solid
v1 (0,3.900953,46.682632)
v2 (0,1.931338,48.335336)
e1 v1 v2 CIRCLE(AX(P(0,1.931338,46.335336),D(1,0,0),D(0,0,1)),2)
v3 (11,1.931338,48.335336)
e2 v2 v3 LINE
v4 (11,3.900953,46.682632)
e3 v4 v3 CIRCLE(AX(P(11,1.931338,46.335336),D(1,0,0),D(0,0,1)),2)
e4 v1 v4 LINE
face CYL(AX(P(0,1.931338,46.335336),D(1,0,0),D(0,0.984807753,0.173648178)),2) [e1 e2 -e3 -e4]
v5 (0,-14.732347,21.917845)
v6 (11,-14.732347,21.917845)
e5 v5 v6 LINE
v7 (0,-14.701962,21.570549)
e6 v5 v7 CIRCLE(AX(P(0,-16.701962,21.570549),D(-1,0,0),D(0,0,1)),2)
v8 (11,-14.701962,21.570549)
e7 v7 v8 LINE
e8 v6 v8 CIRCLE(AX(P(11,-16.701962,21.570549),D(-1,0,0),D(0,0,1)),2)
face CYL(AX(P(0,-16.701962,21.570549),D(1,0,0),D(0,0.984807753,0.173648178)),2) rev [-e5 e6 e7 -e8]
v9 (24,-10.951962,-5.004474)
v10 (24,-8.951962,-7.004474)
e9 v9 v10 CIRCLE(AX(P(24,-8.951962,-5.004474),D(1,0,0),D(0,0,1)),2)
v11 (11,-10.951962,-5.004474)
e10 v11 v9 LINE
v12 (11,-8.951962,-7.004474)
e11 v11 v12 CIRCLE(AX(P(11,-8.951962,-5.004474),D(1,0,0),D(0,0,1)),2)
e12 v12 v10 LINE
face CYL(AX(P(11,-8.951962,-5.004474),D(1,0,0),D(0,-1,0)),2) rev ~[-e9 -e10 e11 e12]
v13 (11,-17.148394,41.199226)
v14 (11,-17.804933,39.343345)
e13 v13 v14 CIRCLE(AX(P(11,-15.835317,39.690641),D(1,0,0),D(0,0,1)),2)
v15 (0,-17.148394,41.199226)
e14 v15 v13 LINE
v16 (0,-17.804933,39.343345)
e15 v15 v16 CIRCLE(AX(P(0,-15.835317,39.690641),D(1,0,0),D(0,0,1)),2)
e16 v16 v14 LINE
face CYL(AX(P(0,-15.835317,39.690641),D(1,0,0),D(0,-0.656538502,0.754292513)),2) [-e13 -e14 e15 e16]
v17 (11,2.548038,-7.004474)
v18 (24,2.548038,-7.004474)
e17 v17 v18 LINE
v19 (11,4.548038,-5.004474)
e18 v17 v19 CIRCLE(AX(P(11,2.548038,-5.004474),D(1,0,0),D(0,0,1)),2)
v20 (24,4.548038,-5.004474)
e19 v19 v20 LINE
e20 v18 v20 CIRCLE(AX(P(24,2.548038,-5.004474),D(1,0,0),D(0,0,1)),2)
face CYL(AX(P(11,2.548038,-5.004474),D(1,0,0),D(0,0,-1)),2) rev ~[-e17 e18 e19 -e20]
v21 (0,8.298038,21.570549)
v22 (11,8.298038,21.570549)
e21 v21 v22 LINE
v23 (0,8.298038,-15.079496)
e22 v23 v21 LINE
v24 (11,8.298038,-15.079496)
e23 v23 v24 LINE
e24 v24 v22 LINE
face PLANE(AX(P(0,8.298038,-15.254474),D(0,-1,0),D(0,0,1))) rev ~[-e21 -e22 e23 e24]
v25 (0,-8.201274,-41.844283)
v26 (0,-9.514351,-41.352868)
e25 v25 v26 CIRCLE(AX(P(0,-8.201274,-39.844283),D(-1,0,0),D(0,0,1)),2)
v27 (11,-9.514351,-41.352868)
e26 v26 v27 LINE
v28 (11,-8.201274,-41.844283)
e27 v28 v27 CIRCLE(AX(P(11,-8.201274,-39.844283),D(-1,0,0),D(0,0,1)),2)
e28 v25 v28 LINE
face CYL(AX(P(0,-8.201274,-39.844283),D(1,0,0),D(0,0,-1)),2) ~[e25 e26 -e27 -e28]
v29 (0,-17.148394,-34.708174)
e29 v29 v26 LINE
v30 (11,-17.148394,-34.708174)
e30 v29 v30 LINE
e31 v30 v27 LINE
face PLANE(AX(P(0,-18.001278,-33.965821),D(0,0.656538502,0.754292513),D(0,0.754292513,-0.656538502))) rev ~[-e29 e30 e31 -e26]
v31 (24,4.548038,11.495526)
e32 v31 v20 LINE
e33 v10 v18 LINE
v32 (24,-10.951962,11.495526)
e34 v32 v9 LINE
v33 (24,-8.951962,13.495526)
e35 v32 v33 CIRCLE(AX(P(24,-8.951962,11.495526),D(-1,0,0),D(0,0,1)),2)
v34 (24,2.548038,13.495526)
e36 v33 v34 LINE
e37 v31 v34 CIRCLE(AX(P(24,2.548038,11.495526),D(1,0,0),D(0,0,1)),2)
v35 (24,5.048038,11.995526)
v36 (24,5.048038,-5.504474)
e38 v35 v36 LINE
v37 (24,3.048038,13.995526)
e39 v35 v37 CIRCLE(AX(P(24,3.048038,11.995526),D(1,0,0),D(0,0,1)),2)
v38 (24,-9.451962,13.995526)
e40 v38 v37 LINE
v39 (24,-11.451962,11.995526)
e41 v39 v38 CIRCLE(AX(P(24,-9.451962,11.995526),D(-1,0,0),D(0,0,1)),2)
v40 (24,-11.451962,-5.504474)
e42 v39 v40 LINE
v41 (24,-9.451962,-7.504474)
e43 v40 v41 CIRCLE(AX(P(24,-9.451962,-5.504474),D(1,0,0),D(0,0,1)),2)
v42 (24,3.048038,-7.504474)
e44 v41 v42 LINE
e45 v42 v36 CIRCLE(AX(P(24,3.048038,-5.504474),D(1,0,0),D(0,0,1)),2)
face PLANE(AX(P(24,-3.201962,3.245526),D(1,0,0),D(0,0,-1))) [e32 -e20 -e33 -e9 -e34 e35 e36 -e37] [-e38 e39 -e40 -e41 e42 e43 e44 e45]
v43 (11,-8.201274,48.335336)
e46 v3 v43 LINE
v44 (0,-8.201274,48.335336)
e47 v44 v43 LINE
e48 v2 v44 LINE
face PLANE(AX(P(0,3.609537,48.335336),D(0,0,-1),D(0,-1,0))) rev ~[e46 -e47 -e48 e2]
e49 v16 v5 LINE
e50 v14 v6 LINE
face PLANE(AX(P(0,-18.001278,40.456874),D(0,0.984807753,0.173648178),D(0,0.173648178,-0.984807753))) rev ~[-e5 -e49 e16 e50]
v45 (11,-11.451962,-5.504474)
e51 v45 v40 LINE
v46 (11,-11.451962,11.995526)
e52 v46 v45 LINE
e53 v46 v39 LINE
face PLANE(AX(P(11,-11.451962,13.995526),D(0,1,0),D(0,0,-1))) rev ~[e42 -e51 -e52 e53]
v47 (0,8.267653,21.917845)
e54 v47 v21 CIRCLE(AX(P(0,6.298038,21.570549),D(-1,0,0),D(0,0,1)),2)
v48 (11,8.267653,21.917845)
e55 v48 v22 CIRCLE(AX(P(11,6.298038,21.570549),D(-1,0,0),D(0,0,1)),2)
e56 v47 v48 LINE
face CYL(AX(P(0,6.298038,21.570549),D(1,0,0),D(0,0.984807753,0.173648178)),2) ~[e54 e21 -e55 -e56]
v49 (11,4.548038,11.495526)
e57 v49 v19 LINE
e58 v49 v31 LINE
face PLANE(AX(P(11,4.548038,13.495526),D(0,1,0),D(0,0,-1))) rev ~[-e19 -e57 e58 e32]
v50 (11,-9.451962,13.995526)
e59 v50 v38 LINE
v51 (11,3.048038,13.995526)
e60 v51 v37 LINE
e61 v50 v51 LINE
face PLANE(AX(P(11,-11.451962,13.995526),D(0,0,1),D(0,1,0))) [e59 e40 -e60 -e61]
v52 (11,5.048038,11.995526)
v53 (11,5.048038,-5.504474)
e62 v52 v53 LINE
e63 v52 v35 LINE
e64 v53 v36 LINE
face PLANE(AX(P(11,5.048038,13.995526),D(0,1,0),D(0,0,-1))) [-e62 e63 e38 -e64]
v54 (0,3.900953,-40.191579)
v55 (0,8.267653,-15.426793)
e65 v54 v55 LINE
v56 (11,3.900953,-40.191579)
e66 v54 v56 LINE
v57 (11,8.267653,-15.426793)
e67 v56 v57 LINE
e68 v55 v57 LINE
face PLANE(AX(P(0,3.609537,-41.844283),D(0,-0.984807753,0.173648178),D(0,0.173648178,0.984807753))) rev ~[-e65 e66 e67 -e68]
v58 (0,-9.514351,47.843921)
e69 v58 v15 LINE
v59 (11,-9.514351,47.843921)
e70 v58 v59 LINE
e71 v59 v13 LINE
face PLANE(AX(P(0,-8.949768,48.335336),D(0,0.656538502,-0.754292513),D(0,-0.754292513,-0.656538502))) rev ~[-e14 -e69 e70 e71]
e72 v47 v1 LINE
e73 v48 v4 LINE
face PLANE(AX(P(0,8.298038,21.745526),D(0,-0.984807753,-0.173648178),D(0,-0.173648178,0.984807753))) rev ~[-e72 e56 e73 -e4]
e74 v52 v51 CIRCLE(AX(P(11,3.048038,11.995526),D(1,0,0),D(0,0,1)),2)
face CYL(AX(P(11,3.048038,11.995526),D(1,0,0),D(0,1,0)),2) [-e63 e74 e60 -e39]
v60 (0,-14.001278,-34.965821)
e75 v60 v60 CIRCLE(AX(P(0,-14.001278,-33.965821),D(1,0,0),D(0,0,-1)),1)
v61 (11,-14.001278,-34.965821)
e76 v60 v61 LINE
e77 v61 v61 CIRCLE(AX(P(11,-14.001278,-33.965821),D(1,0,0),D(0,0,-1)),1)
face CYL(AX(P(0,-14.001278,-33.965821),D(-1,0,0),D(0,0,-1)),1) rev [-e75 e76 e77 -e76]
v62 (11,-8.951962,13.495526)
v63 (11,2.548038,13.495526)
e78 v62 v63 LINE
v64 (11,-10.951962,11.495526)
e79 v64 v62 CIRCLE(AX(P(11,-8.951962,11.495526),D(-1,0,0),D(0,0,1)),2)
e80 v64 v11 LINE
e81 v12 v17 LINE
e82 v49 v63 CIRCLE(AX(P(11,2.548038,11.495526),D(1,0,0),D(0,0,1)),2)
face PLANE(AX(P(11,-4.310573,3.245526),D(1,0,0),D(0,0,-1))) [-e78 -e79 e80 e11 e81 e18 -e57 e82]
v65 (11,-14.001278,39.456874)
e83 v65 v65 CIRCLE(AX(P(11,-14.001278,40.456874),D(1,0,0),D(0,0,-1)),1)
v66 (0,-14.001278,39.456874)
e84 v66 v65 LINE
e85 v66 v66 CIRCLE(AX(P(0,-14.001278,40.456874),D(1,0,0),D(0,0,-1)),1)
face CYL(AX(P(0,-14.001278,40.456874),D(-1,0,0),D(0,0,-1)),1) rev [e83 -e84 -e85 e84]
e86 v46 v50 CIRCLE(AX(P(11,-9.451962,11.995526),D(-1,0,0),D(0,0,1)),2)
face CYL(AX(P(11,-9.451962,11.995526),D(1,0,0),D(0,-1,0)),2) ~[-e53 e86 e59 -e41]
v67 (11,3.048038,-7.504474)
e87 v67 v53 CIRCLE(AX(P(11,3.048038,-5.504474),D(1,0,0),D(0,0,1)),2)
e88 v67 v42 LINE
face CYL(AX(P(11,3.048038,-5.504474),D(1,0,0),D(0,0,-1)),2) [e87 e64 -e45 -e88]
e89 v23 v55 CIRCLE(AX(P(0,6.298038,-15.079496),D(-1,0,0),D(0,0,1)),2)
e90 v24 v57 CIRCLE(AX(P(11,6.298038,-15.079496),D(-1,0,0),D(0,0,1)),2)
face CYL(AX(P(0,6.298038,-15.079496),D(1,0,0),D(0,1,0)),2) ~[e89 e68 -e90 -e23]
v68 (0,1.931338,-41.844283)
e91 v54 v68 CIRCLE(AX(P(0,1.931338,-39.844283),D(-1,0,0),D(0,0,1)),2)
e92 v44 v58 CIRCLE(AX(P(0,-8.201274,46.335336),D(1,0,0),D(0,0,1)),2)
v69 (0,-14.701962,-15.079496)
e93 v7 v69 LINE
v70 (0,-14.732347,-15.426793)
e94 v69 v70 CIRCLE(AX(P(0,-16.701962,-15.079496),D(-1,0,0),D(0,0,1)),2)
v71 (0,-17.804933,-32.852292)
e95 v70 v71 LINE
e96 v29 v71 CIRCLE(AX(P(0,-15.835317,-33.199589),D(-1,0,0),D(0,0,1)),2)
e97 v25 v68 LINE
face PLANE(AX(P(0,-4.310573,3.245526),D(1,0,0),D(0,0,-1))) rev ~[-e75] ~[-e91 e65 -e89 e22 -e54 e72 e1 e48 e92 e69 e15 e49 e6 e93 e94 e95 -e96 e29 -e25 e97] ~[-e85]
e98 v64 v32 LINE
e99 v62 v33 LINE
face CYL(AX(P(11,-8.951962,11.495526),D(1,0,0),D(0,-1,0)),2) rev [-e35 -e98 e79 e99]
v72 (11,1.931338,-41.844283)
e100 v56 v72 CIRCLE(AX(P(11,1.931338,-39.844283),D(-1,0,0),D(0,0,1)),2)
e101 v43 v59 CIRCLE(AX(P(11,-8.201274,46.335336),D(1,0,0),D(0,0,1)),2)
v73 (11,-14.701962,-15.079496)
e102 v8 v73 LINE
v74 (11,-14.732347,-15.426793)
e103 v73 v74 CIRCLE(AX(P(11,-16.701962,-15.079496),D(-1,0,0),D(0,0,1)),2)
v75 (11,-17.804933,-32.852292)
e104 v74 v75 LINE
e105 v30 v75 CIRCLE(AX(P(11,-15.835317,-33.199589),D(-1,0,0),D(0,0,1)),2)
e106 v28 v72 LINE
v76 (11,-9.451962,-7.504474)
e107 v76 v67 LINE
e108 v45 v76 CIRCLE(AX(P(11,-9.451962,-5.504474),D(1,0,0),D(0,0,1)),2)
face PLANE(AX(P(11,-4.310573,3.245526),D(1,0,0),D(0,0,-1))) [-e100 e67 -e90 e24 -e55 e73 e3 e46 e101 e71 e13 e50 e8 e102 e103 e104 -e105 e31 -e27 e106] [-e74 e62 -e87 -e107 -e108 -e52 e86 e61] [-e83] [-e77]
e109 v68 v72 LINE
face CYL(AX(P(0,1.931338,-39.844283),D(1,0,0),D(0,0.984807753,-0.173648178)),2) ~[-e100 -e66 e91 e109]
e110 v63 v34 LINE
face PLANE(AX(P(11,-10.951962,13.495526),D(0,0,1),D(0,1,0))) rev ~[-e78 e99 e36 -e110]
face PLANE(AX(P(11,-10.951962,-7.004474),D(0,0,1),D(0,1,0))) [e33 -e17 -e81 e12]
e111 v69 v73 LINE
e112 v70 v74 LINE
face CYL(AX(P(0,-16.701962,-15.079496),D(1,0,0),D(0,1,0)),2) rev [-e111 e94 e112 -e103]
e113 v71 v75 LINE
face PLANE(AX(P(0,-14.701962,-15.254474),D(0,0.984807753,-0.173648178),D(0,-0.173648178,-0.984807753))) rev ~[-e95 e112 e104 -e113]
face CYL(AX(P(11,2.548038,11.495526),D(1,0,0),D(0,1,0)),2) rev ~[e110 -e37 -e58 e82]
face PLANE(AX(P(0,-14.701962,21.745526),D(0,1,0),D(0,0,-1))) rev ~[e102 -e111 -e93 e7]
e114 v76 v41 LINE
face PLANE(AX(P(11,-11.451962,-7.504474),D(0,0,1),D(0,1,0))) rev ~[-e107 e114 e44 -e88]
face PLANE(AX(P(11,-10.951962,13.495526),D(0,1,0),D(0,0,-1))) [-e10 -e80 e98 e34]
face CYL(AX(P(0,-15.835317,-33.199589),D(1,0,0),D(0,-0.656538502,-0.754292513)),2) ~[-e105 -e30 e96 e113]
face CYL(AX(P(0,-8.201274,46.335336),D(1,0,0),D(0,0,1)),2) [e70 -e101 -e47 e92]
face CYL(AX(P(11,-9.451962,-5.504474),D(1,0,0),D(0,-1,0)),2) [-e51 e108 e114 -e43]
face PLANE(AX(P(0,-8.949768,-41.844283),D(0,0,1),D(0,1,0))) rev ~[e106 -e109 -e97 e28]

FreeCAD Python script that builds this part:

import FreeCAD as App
import Part
import Sketcher

V = App.Vector
Q = App.Units.Quantity


def edges_at(feature, points):
    """Names of the edges that pass closest to the given points."""
    edges = feature.Shape.Edges
    near = lambda p: min(range(len(edges)), key=lambda i: edges[i].distToShape(Part.Vertex(*p))[0])
    return sorted({f"Edge{near(p) + 1}" for p in points})

doc = App.newDocument("Part")
body = doc.addObject("PartDesign::Body", "Body")

sketch1 = body.newObject("Sketcher::SketchObject", "Sketch")
sketch1.AttachmentSupport = (doc.getObject("YZ_Plane"), [""])
sketch1.MapMode = "FlatFace"
sketch1.addGeometry([
    Part.LineSegment(V(8.3, 21.7, 0), V(3.6, 48.3, 0)),
    Part.LineSegment(V(3.6, 48.3, 0), V(-8.9, 48.3, 0)),
    Part.LineSegment(V(-8.9, 48.3, 0), V(-18, 40.5, 0)),
    Part.LineSegment(V(-18, 40.5, 0), V(-14.7, 21.7, 0)),
    Part.LineSegment(V(-14.7, 21.7, 0), V(-14.7, -15.3, 0)),
    Part.LineSegment(V(-14.7, -15.3, 0), V(-18, -34, 0)),
    Part.LineSegment(V(-18, -34, 0), V(-8.9, -41.8, 0)),
    Part.LineSegment(V(-8.9, -41.8, 0), V(3.6, -41.8, 0)),
    Part.LineSegment(V(3.6, -41.8, 0), V(8.3, -15.3, 0)),
    Part.LineSegment(V(8.3, -15.3, 0), V(8.3, 21.7, 0)),
    Part.Circle(V(-14, 40.5, 0), V(0, 0, 1), 1),
    Part.Circle(V(-14, -34, 0), V(0, 0, 1), 1),
], False)
sketch1.addConstraint([
    Sketcher.Constraint("Coincident", 0, 2, 1, 1),
    Sketcher.Constraint("Coincident", 1, 2, 2, 1),
    Sketcher.Constraint("Coincident", 2, 2, 3, 1),
    Sketcher.Constraint("Coincident", 3, 2, 4, 1),
    Sketcher.Constraint("Coincident", 4, 2, 5, 1),
    Sketcher.Constraint("Coincident", 5, 2, 6, 1),
    Sketcher.Constraint("Coincident", 6, 2, 7, 1),
    Sketcher.Constraint("Coincident", 7, 2, 8, 1),
    Sketcher.Constraint("Coincident", 8, 2, 9, 1),
    Sketcher.Constraint("Coincident", 9, 2, 0, 1),
    Sketcher.Constraint("Horizontal", 1),
    Sketcher.Constraint("Vertical", 4),
    Sketcher.Constraint("Horizontal", 7),
    Sketcher.Constraint("Vertical", 9),
    Sketcher.Constraint("Equal", 10, 11),
    Sketcher.Constraint("Parallel", 0, 3),
    Sketcher.Constraint("Parallel", 5, 8),
    Sketcher.Constraint("Horizontal", 10, 3, 2, 2),
    Sketcher.Constraint("Horizontal", 11, 3, 5, 2),
    Sketcher.Constraint("Horizontal", 4, 2, 8, 2),
    Sketcher.Constraint("Horizontal", 3, 2, 9, 2),
    Sketcher.Constraint("Vertical", 10, 3, 11, 3),
    Sketcher.Constraint("Vertical", 2, 2, 5, 2),
    Sketcher.Constraint("Vertical", 1, 2, 6, 2),
    Sketcher.Constraint("Vertical", 0, 2, 7, 2),
    Sketcher.Constraint("Equal", 3, 5),
    Sketcher.Constraint("Diameter", 10, 2.0),
    Sketcher.Constraint("DistanceY", 4, 2, 4, 1, 37.0),
    Sketcher.Constraint("Angle", 0, Q("100 deg")),
    Sketcher.Constraint("Distance", 0, 27.0),
    Sketcher.Constraint("Distance", 2, 12.0),
    Sketcher.Constraint("Distance", 3, 19.0),
    Sketcher.Constraint("DistanceX", 2, 2, 10, 3, 4.0),
    Sketcher.Constraint("DistanceX", 4, 2, 8, 2, 23.0),
    Sketcher.Constraint("DistanceY", 11, 3, -1, 1, 33.965821),
    Sketcher.Constraint("DistanceX", 10, 3, -1, 1, 14.001278),
])
pad1 = body.newObject("PartDesign::Pad", "Pad")
pad1.Profile = sketch1
pad1.Length = 11

sketch2 = body.newObject("Sketcher::SketchObject", "Sketch001")
sketch2.AttachmentSupport = (doc.getObject("YZ_Plane"), [""])
sketch2.MapMode = "FlatFace"
sketch2.AttachmentOffset = App.Placement(V(0, 0, 11), App.Rotation())
sketch2.addGeometry([
    Part.LineSegment(V(5, 14, 0), V(-11, 14, 0)),
    Part.LineSegment(V(-11, 14, 0), V(-11, -8, 0)),
    Part.LineSegment(V(-11, -8, 0), V(5, -8, 0)),
    Part.LineSegment(V(5, -8, 0), V(5, 14, 0)),
    Part.LineSegment(V(-11, -7, 0), V(-11, 13, 0)),
    Part.LineSegment(V(-11, 13, 0), V(5, 13, 0)),
    Part.LineSegment(V(5, 13, 0), V(5, -7, 0)),
    Part.LineSegment(V(5, -7, 0), V(-11, -7, 0)),
], False)
sketch2.addConstraint([
    Sketcher.Constraint("Coincident", 0, 2, 1, 1),
    Sketcher.Constraint("Coincident", 1, 2, 2, 1),
    Sketcher.Constraint("Coincident", 2, 2, 3, 1),
    Sketcher.Constraint("Coincident", 3, 2, 0, 1),
    Sketcher.Constraint("Coincident", 4, 2, 5, 1),
    Sketcher.Constraint("Coincident", 5, 2, 6, 1),
    Sketcher.Constraint("Coincident", 6, 2, 7, 1),
    Sketcher.Constraint("Coincident", 7, 2, 4, 1),
    Sketcher.Constraint("Horizontal", 0),
    Sketcher.Constraint("Vertical", 1),
    Sketcher.Constraint("Horizontal", 2),
    Sketcher.Constraint("Vertical", 3),
    Sketcher.Constraint("Vertical", 4),
    Sketcher.Constraint("Horizontal", 5),
    Sketcher.Constraint("Vertical", 6),
    Sketcher.Constraint("Horizontal", 7),
    Sketcher.Constraint("DistanceX", 0, 2, 0, 1, 16.5),
    Sketcher.Constraint("DistanceX", 5, 1, 5, 2, 15.5),
    Sketcher.Constraint("DistanceY", 1, 2, 1, 1, 21.5),
    Sketcher.Constraint("DistanceY", 4, 1, 4, 2, 20.5),
    Sketcher.Constraint("DistanceX", 4, 2, 3, 2, 16.0),
    Sketcher.Constraint("DistanceY", 1, 2, 4, 2, 21.0),
    Sketcher.Constraint("DistanceX", 0, 2, -1, 1, 11.451962),
    Sketcher.Constraint("DistanceY", -1, 1, 0, 2, 13.995526),
])
pad2 = body.newObject("PartDesign::Pad", "Pad001")
pad2.Profile = sketch2
pad2.Length = 13
doc.recompute()

fillet = body.newObject("PartDesign::Fillet", "Fillet")
fillet.Base = (pad2, edges_at(pad2, [
    (5.5, 8.298, -15.254),
    (5.5, 3.61, -41.844),
    (5.5, -8.95, -41.844),
    (5.5, -18.001, -33.966),
    (5.5, -14.702, -15.254),
    (5.5, -14.702, 21.746),
    (5.5, -18.001, 40.457),
    (5.5, -8.95, 48.335),
    (5.5, 3.61, 48.335),
    (5.5, 8.298, 21.746),
]))
fillet.Radius = 2
doc.recompute()

fillet2 = body.newObject("PartDesign::Fillet", "Fillet001")
fillet2.Base = (fillet, edges_at(fillet, [
    (17.5, -11.452, -7.504),
    (17.5, 5.048, -7.504),
    (17.5, 5.048, 13.996),
    (17.5, -11.452, 13.996),
    (17.5, 4.548, -7.004),
    (17.5, 4.548, 13.496),
    (17.5, -10.952, 13.496),
    (17.5, -10.952, -7.004),
]))
fillet2.Radius = 2

doc.recompute()
